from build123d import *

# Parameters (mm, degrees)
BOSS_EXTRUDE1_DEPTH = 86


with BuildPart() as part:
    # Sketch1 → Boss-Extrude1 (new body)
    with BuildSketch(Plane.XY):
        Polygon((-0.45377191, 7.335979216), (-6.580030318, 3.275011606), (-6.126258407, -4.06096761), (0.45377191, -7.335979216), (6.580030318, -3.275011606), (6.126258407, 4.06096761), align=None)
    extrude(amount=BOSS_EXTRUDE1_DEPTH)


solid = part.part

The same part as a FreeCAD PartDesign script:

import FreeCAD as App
import Part
import Sketcher
from FreeCAD import Vector

doc = App.newDocument("Part")
body = doc.addObject("PartDesign::Body", "Body")

sketch1 = body.newObject("Sketcher::SketchObject", "Sketch")
sketch1.AttachmentSupport = (doc.getObject("XY_Plane"), [""])
sketch1.MapMode = "FlatFace"
sketch1.addGeometry(Part.LineSegment(Vector(-0.453772, 7.335979, 0), Vector(-6.58003, 3.275012, 0)), False)
sketch1.addGeometry(Part.LineSegment(Vector(-6.58003, 3.275012, 0), Vector(-6.126258, -4.060968, 0)), False)
sketch1.addGeometry(Part.LineSegment(Vector(-6.126258, -4.060968, 0), Vector(0.453772, -7.335979, 0)), False)
sketch1.addGeometry(Part.LineSegment(Vector(0.453772, -7.335979, 0), Vector(6.58003, -3.275012, 0)), False)
sketch1.addGeometry(Part.LineSegment(Vector(6.58003, -3.275012, 0), Vector(6.126258, 4.060968, 0)), False)
sketch1.addGeometry(Part.LineSegment(Vector(6.126258, 4.060968, 0), Vector(-0.453772, 7.335979, 0)), False)
sketch1.addConstraint(Sketcher.Constraint("Coincident", 0, 2, 1, 1))
sketch1.addConstraint(Sketcher.Constraint("Coincident", 1, 2, 2, 1))
sketch1.addConstraint(Sketcher.Constraint("Coincident", 2, 2, 3, 1))
sketch1.addConstraint(Sketcher.Constraint("Coincident", 3, 2, 4, 1))
sketch1.addConstraint(Sketcher.Constraint("Coincident", 4, 2, 5, 1))
sketch1.addConstraint(Sketcher.Constraint("Coincident", 5, 2, 0, 1))
sketch1.addConstraint(Sketcher.Constraint("Symmetric", 0, 2, 3, 2, -1, 1))
sketch1.addConstraint(Sketcher.Constraint("Symmetric", 1, 2, 4, 2, -1, 1))
sketch1.addConstraint(Sketcher.Constraint("Symmetric", 2, 2, 5, 2, -1, 1))
sketch1.addConstraint(Sketcher.Constraint("Equal", 0, 1))
sketch1.addConstraint(Sketcher.Constraint("Equal", 1, 2))
sketch1.addConstraint(Sketcher.Constraint("Distance", 0, 7.35))
sketch1.addConstraint(Sketcher.Constraint("DistanceX", 0, 2, -1, 1, 6.58003))
sketch1.addConstraint(Sketcher.Constraint("DistanceY", -1, 1, 0, 2, 3.275012))
sketch1.addConstraint(Sketcher.Constraint("DistanceX", 1, 2, -1, 1, 6.126258))
pad1 = body.newObject("PartDesign::Pad", "Pad")
pad1.Profile = sketch1
pad1.Length = 86

doc.recompute()
